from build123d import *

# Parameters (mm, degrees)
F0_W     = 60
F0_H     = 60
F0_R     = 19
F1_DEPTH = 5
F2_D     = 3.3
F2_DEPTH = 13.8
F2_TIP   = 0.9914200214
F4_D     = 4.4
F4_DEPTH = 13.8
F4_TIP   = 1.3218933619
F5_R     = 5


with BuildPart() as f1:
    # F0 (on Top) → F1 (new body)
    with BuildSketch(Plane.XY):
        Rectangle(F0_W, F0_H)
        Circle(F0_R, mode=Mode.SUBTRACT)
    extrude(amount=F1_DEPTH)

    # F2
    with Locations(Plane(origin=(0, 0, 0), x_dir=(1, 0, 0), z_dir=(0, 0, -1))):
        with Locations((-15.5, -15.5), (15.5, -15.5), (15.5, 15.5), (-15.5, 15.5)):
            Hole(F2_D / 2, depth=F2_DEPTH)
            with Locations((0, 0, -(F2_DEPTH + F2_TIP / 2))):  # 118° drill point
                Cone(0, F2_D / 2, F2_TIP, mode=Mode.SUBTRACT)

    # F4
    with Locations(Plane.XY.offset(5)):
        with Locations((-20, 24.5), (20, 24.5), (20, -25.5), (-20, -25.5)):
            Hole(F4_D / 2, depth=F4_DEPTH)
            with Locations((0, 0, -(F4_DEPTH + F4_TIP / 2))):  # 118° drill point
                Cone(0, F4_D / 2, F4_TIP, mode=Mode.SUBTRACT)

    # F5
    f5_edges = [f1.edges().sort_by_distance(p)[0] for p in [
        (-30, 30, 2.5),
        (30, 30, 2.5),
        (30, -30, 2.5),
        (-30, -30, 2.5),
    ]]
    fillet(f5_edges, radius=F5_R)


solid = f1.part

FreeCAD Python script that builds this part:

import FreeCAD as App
import Part
import Sketcher


def edges_at(feature, points):
    """Names of the edges that pass closest to the given points."""
    edges = feature.Shape.Edges
    near = lambda p: min(range(len(edges)), key=lambda i: edges[i].distToShape(Part.Vertex(*p))[0])
    return sorted({f"Edge{near(p) + 1}" for p in points})


def add_polygon(sketch, points):
    """Adds a closed chain of lines whose ends are joined by coincident constraints."""
    first, n = sketch.GeometryCount, len(points)
    for a, b in zip(points, points[1:] + points[:1]):
        sketch.addGeometry(Part.LineSegment(App.Vector(*a, 0), App.Vector(*b, 0)), False)
    for i in range(n):
        sketch.addConstraint(Sketcher.Constraint("Coincident", first + i, 2, first + (i + 1) % n, 1))

doc = App.newDocument("Part")
body = doc.addObject("PartDesign::Body", "Body")

sketch1 = body.newObject("Sketcher::SketchObject", "Sketch")
sketch1.AttachmentSupport = (doc.getObject("XY_Plane"), [""])
sketch1.MapMode = "FlatFace"
add_polygon(sketch1, [(-30, 30), (-30, -30), (30, -30), (30, 30)])
sketch1.addGeometry(Part.Circle(App.Vector(0, 0, 0), App.Vector(0, 0, 1), 19), False)
sketch1.addConstraint([
    Sketcher.Constraint("Vertical", 0),
    Sketcher.Constraint("Horizontal", 1),
    Sketcher.Constraint("Vertical", 2),
    Sketcher.Constraint("Horizontal", 3),
    Sketcher.Constraint("Coincident", 4, 3, -1, 1),
    Sketcher.Constraint("Symmetric", 0, 2, 2, 2, -1, 1),
    Sketcher.Constraint("Equal", 3, 0),
    Sketcher.Constraint("Diameter", 4, 38.0),
    Sketcher.Constraint("DistanceX", 1, 1, 1, 2, 60.0),
])
pad1 = body.newObject("PartDesign::Pad", "Pad")
pad1.Profile = sketch1
pad1.Length = 5

sketch2 = body.newObject("Sketcher::SketchObject", "Sketch001")
sketch2.AttachmentSupport = (doc.getObject("XY_Plane"), [""])
sketch2.MapMode = "FlatFace"
sketch2.addGeometry([
    Part.Circle(App.Vector(-15.5, 15.5, 0), App.Vector(0, 0, 1), 1.65),
    Part.Circle(App.Vector(15.5, 15.5, 0), App.Vector(0, 0, 1), 1.65),
    Part.Circle(App.Vector(15.5, -15.5, 0), App.Vector(0, 0, 1), 1.65),
    Part.Circle(App.Vector(-15.5, -15.5, 0), App.Vector(0, 0, 1), 1.65),
], False)
sketch2.addConstraint([
    Sketcher.Constraint("Equal", 0, 1),
    Sketcher.Constraint("Equal", 1, 2),
    Sketcher.Constraint("Equal", 2, 3),
    Sketcher.Constraint("Symmetric", 0, 3, 2, 3, -1, 1),
    Sketcher.Constraint("Symmetric", 1, 3, 3, 3, -1, 1),
    Sketcher.Constraint("Symmetric", 0, 3, 1, 3, -2),
    Sketcher.Constraint("Diameter", 0, 3.3),
    Sketcher.Constraint("DistanceX", 0, 3, 1, 3, 31.0),
    Sketcher.Constraint("DistanceY", 2, 3, 1, 3, 31.0),
])
doc.recompute()
hole = body.newObject("PartDesign::Hole", "Hole")
hole.Profile = sketch2
hole.ThreadType = "None"
hole.Diameter = 3.3
hole.DepthType = "Dimension"
hole.Depth = 13.8
hole.DrillPoint = "Angled"
hole.DrillPointAngle = 118
hole.Reversed = True

sketch3 = body.newObject("Sketcher::SketchObject", "Sketch002")
sketch3.AttachmentSupport = (doc.getObject("XY_Plane"), [""])
sketch3.MapMode = "FlatFace"
sketch3.AttachmentOffset = App.Placement(App.Vector(0, 0, 5), App.Rotation())
sketch3.addGeometry([
    Part.Circle(App.Vector(-20, 24.5, 0), App.Vector(0, 0, 1), 2.2),
    Part.Circle(App.Vector(20, 24.5, 0), App.Vector(0, 0, 1), 2.2),
    Part.Circle(App.Vector(20, -25.5, 0), App.Vector(0, 0, 1), 2.2),
    Part.Circle(App.Vector(-20, -25.5, 0), App.Vector(0, 0, 1), 2.2),
], False)
sketch3.addConstraint([
    Sketcher.Constraint("Equal", 0, 1),
    Sketcher.Constraint("Equal", 1, 2),
    Sketcher.Constraint("Equal", 2, 3),
    Sketcher.Constraint("Symmetric", 0, 3, 1, 3, -2),
    Sketcher.Constraint("Symmetric", 2, 3, 3, 3, -2),
    Sketcher.Constraint("Vertical", 1, 3, 2, 3),
    Sketcher.Constraint("Diameter", 0, 4.4),
    Sketcher.Constraint("DistanceX", 0, 3, -1, 1, 20.0),
    Sketcher.Constraint("DistanceY", 2, 3, 1, 3, 50.0),
    Sketcher.Constraint("DistanceY", -1, 1, 0, 3, 24.5),
])
doc.recompute()
hole2 = body.newObject("PartDesign::Hole", "Hole001")
hole2.Profile = sketch3
hole2.ThreadType = "None"
hole2.Diameter = 4.4
hole2.DepthType = "Dimension"
hole2.Depth = 13.8
hole2.DrillPoint = "Angled"
hole2.DrillPointAngle = 118
doc.recompute()

fillet = body.newObject("PartDesign::Fillet", "Fillet")
fillet.Base = (hole2, edges_at(hole2, [
    (-30, 30, 2.5),
    (30, 30, 2.5),
    (30, -30, 2.5),
    (-30, -30, 2.5),
]))
fillet.Radius = 5

doc.recompute()
